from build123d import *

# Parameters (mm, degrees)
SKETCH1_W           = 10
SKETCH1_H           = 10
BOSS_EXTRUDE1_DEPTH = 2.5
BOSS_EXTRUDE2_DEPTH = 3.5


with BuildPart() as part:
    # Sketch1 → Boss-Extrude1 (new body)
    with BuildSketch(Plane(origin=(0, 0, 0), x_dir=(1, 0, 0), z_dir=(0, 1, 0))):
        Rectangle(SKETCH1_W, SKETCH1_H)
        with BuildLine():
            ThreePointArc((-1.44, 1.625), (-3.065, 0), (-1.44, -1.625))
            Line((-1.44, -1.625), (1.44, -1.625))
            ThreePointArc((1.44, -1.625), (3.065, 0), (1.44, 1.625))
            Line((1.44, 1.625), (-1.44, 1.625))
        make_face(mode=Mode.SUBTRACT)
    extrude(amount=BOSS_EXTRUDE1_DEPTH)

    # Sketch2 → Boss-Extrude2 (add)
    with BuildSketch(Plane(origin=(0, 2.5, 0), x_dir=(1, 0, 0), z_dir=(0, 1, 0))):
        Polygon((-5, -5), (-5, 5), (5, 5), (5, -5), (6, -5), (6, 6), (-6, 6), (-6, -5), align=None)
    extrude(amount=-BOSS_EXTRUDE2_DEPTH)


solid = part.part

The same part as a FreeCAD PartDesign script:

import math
import FreeCAD as App
import Part
import Sketcher

V = App.Vector

doc = App.newDocument("Part")
params = doc.addObject("Spreadsheet::Sheet", "Params")
for row, (alias, value) in enumerate([
    ("sketch1_width", "10 mm"),
    ("sketch1_width2", "2.88 mm"),
    ("pad1_length", "2.5 mm"),
    ("sketch2_width", "10 mm"),
    ("sketch2_width2", "1 mm"),
    ("sketch2_height", "11 mm"),
    ("pad2_length", "3.5 mm"),
], start=1):
    params.set(f"A{row}", alias)
    params.set(f"B{row}", "=" + value)
    params.setAlias(f"B{row}", alias)

body = doc.addObject("PartDesign::Body", "Body")

sketch1 = body.newObject("Sketcher::SketchObject", "Sketch")
sketch1.AttachmentSupport = (doc.getObject("XZ_Plane"), [""])
sketch1.MapMode = "FlatFace"
sketch1.addGeometry([
    Part.LineSegment(V(-5, -5, 0), V(-5, 5, 0)),
    Part.LineSegment(V(-5, 5, 0), V(5, 5, 0)),
    Part.LineSegment(V(5, 5, 0), V(5, -5, 0)),
    Part.LineSegment(V(5, -5, 0), V(-5, -5, 0)),
    Part.ArcOfCircle(Part.Circle(V(-1.4, 0, 0), V(0, 0, 1), 1.6), math.radians(90), math.radians(270)),
    Part.LineSegment(V(-1.4, -1.6, 0), V(1.4, -1.6, 0)),
    Part.ArcOfCircle(Part.Circle(V(1.4, 0, 0), V(0, 0, 1), 1.6), math.radians(-90), math.radians(90)),
    Part.LineSegment(V(1.4, 1.6, 0), V(-1.4, 1.6, 0)),
], False)
sketch1.addConstraint([
    Sketcher.Constraint("Coincident", 0, 2, 1, 1),
    Sketcher.Constraint("Coincident", 1, 2, 2, 1),
    Sketcher.Constraint("Coincident", 2, 2, 3, 1),
    Sketcher.Constraint("Coincident", 3, 2, 0, 1),
    Sketcher.Constraint("Tangent", 4, 2, 5, 1),
    Sketcher.Constraint("Tangent", 5, 2, 6, 1),
    Sketcher.Constraint("Tangent", 6, 2, 7, 1),
    Sketcher.Constraint("Tangent", 7, 2, 4, 1),
    Sketcher.Constraint("Vertical", 0),
    Sketcher.Constraint("Horizontal", 1),
    Sketcher.Constraint("Vertical", 2),
    Sketcher.Constraint("Horizontal", 3),
    Sketcher.Constraint("Horizontal", 5),
    Sketcher.Constraint("Horizontal", 7),
    Sketcher.Constraint("Symmetric", 4, 3, 6, 3, -1, 1),
    Sketcher.Constraint("Symmetric", 0, 2, 2, 2, -1, 1),
    Sketcher.Constraint("Equal", 3, 0),
    Sketcher.Constraint("DistanceX", 1, 1, 1, 2, 10.0),
    Sketcher.Constraint("Radius", 4, 1.625),
    Sketcher.Constraint("DistanceX", 5, 1, 5, 2, 2.88),
])
sketch1.setExpression("Constraints[17]", "Params.sketch1_width")
sketch1.setExpression("Constraints[19]", "Params.sketch1_width2")
pad1 = body.newObject("PartDesign::Pad", "Pad")
pad1.Profile = sketch1
pad1.setExpression("Length", "Params.pad1_length")
pad1.Reversed = True

sketch2 = body.newObject("Sketcher::SketchObject", "Sketch001")
sketch2.AttachmentSupport = (doc.getObject("XZ_Plane"), [""])
sketch2.MapMode = "FlatFace"
sketch2.AttachmentOffset = App.Placement(V(0, 0, -2.5), App.Rotation())
sketch2.addGeometry([
    Part.LineSegment(V(-5, 5, 0), V(-5, -5, 0)),
    Part.LineSegment(V(-5, -5, 0), V(5, -5, 0)),
    Part.LineSegment(V(5, -5, 0), V(5, 5, 0)),
    Part.LineSegment(V(5, 5, 0), V(6, 5, 0)),
    Part.LineSegment(V(6, 5, 0), V(6, -6, 0)),
    Part.LineSegment(V(6, -6, 0), V(-6, -6, 0)),
    Part.LineSegment(V(-6, -6, 0), V(-6, 5, 0)),
    Part.LineSegment(V(-6, 5, 0), V(-5, 5, 0)),
], False)
sketch2.addConstraint([
    Sketcher.Constraint("Coincident", 0, 2, 1, 1),
    Sketcher.Constraint("Coincident", 1, 2, 2, 1),
    Sketcher.Constraint("Coincident", 2, 2, 3, 1),
    Sketcher.Constraint("Coincident", 3, 2, 4, 1),
    Sketcher.Constraint("Coincident", 4, 2, 5, 1),
    Sketcher.Constraint("Coincident", 5, 2, 6, 1),
    Sketcher.Constraint("Coincident", 6, 2, 7, 1),
    Sketcher.Constraint("Coincident", 7, 2, 0, 1),
    Sketcher.Constraint("Vertical", 0),
    Sketcher.Constraint("Horizontal", 1),
    Sketcher.Constraint("Vertical", 2),
    Sketcher.Constraint("Horizontal", 3),
    Sketcher.Constraint("Vertical", 4),
    Sketcher.Constraint("Horizontal", 5),
    Sketcher.Constraint("Vertical", 6),
    Sketcher.Constraint("Horizontal", 7),
    Sketcher.Constraint("Symmetric", 0, 2, 2, 2, -1, 1),
    Sketcher.Constraint("Symmetric", 3, 2, 6, 2, -2),
    Sketcher.Constraint("Equal", 1, 0),
    Sketcher.Constraint("DistanceX", 1, 1, 1, 2, 10.0),
    Sketcher.Constraint("DistanceX", 3, 1, 3, 2, 1.0),
    Sketcher.Constraint("DistanceY", 4, 2, 4, 1, 11.0),
])
sketch2.setExpression("Constraints[19]", "Params.sketch2_width")
sketch2.setExpression("Constraints[20]", "Params.sketch2_width2")
sketch2.setExpression("Constraints[21]", "Params.sketch2_height")
pad2 = body.newObject("PartDesign::Pad", "Pad001")
pad2.Profile = sketch2
pad2.setExpression("Length", "Params.pad2_length")

doc.recompute()
